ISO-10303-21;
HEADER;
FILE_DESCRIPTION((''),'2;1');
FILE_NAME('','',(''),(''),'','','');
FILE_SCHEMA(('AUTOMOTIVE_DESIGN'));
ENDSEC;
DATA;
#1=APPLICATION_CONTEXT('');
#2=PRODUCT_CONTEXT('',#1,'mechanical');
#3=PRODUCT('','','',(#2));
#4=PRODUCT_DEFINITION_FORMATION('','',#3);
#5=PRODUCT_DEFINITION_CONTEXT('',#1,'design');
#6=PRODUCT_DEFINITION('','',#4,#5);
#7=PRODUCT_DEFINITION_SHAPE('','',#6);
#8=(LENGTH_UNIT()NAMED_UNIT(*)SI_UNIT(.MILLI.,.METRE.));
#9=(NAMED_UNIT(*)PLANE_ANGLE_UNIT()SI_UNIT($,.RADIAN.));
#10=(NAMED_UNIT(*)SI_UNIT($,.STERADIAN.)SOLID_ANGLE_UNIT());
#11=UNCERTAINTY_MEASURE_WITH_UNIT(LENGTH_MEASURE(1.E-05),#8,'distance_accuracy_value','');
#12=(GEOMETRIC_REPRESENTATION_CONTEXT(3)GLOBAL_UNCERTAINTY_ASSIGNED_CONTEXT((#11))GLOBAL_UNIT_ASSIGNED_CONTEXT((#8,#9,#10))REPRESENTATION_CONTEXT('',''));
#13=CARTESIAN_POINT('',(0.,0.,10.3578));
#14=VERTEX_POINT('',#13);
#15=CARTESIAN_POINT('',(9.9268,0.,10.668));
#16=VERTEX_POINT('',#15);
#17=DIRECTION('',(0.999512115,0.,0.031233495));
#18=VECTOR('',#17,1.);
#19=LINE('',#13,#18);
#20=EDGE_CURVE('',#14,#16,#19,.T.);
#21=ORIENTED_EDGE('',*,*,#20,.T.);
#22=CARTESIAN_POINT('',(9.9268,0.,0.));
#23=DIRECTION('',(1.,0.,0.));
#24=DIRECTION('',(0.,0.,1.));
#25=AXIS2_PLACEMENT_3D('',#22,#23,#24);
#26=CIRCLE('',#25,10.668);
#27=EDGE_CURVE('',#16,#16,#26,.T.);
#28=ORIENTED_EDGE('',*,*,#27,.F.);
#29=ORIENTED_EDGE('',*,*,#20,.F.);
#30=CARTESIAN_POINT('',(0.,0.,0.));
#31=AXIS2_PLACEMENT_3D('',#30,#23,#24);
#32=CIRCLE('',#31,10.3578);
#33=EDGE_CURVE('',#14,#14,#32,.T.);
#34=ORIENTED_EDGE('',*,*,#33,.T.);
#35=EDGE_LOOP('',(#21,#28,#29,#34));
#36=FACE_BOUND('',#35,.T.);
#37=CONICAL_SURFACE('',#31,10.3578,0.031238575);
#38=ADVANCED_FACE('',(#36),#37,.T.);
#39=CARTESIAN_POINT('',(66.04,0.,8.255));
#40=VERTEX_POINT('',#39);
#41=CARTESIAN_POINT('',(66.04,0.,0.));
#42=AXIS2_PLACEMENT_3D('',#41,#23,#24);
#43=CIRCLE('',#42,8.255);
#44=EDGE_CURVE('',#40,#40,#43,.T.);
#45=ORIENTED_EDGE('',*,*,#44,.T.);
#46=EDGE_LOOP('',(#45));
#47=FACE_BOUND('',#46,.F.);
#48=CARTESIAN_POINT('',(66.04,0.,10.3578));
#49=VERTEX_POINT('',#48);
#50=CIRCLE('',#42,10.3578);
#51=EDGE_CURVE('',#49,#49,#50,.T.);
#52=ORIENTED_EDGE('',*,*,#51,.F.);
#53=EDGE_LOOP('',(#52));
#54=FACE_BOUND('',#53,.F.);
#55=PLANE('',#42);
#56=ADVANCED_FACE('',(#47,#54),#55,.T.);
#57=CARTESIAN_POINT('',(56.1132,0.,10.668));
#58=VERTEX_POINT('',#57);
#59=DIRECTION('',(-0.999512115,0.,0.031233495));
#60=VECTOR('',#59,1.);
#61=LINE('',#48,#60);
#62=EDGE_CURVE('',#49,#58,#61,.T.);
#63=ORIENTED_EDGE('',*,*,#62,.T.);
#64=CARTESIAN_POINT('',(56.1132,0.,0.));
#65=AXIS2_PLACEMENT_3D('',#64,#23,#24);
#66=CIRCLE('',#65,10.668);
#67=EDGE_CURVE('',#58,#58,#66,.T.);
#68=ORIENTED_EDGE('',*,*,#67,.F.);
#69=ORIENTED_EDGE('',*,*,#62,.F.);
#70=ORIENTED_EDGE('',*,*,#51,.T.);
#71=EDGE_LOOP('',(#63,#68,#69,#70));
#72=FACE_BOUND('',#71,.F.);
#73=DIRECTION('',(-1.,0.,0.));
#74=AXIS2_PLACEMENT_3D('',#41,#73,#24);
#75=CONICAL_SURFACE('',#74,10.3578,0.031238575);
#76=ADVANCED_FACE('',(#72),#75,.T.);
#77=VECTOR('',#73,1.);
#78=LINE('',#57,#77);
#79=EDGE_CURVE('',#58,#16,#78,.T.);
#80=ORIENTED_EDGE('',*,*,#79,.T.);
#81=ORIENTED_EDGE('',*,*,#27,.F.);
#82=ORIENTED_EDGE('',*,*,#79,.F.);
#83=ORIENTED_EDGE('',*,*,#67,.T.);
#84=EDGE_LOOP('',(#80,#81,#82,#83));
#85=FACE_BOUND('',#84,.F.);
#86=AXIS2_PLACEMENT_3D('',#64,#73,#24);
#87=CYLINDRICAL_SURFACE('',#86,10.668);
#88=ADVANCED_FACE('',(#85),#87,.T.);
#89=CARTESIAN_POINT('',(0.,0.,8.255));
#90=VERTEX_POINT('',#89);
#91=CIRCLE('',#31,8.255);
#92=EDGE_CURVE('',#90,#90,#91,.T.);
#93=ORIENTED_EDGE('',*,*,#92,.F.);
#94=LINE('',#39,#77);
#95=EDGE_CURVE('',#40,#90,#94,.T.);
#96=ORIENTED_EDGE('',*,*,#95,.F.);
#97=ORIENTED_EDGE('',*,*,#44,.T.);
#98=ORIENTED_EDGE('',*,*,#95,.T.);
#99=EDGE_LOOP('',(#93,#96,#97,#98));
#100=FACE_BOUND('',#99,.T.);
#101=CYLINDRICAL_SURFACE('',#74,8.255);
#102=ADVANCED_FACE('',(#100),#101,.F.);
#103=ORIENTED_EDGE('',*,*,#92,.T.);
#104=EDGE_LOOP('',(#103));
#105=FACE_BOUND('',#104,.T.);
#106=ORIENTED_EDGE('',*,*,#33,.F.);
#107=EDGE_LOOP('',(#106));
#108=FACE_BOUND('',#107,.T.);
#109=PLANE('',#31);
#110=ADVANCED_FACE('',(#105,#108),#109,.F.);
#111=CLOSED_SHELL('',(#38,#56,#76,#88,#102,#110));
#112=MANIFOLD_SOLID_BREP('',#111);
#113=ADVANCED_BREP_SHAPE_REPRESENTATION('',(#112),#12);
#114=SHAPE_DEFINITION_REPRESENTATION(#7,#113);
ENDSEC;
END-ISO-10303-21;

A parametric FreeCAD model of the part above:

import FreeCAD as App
import Part
import Sketcher
from FreeCAD import Vector
Q = App.Units.Quantity

doc = App.newDocument("Part")
body = doc.addObject("PartDesign::Body", "Body")

# Sketch on XZ plane
sketch1 = doc.addObject("Sketcher::SketchObject", "Sketch")
body.addObject(sketch1)
sketch1.AttachmentSupport = (doc.XZ_Plane, [""])
sketch1.MapMode = "FlatFace"
sketch1.addGeometry([
    Part.LineSegment(Vector(66, 10.4, 0), Vector(66, 8.3, 0)),  # 0
    Part.LineSegment(Vector(66, 8.3, 0), Vector(0, 8.3, 0)),  # 1
    Part.LineSegment(Vector(0, 8.3, 0), Vector(0, 10.4, 0)),  # 2
    Part.LineSegment(Vector(0, 10.4, 0), Vector(9.9, 10.7, 0)),  # 3
    Part.LineSegment(Vector(9.9, 10.7, 0), Vector(56.1, 10.7, 0)),  # 4
    Part.LineSegment(Vector(56.1, 10.7, 0), Vector(66, 10.4, 0)),  # 5
], False)
sketch1.addConstraint([
    Sketcher.Constraint("Coincident", 0, 2, 1, 1),
    Sketcher.Constraint("Coincident", 1, 2, 2, 1),
    Sketcher.Constraint("Coincident", 2, 2, 3, 1),
    Sketcher.Constraint("Coincident", 3, 2, 4, 1),
    Sketcher.Constraint("Coincident", 4, 2, 5, 1),
    Sketcher.Constraint("Coincident", 5, 2, 0, 1),
    Sketcher.Constraint("Vertical", 0),
    Sketcher.Constraint("Horizontal", 1),
    Sketcher.Constraint("Vertical", 2),
    Sketcher.Constraint("Horizontal", 4),
    Sketcher.Constraint("PointOnObject", 1, 2, -2),
    Sketcher.Constraint("Horizontal", 2, 2, 5, 2),
    Sketcher.Constraint("Equal", 3, 5),
    Sketcher.Constraint("DistanceX", 1, 2, 1, 1, Q("2.6 in")),
    Sketcher.Constraint("Angle", 3, Q("1.7898 deg")),
    Sketcher.Constraint("DistanceY", -1, 1, 3, 2, Q("0.42 in")),
    Sketcher.Constraint("Distance", 3, Q("0.391 in")),
    Sketcher.Constraint("DistanceY", -1, 1, 0, 2, Q("0.325 in")),
])
revolution = doc.addObject("PartDesign::Revolution", "Revolution")
body.addObject(revolution)
revolution.Profile = sketch1
revolution.ReferenceAxis = (sketch1, ["H_Axis"])
revolution.Angle = 360

doc.recompute()
